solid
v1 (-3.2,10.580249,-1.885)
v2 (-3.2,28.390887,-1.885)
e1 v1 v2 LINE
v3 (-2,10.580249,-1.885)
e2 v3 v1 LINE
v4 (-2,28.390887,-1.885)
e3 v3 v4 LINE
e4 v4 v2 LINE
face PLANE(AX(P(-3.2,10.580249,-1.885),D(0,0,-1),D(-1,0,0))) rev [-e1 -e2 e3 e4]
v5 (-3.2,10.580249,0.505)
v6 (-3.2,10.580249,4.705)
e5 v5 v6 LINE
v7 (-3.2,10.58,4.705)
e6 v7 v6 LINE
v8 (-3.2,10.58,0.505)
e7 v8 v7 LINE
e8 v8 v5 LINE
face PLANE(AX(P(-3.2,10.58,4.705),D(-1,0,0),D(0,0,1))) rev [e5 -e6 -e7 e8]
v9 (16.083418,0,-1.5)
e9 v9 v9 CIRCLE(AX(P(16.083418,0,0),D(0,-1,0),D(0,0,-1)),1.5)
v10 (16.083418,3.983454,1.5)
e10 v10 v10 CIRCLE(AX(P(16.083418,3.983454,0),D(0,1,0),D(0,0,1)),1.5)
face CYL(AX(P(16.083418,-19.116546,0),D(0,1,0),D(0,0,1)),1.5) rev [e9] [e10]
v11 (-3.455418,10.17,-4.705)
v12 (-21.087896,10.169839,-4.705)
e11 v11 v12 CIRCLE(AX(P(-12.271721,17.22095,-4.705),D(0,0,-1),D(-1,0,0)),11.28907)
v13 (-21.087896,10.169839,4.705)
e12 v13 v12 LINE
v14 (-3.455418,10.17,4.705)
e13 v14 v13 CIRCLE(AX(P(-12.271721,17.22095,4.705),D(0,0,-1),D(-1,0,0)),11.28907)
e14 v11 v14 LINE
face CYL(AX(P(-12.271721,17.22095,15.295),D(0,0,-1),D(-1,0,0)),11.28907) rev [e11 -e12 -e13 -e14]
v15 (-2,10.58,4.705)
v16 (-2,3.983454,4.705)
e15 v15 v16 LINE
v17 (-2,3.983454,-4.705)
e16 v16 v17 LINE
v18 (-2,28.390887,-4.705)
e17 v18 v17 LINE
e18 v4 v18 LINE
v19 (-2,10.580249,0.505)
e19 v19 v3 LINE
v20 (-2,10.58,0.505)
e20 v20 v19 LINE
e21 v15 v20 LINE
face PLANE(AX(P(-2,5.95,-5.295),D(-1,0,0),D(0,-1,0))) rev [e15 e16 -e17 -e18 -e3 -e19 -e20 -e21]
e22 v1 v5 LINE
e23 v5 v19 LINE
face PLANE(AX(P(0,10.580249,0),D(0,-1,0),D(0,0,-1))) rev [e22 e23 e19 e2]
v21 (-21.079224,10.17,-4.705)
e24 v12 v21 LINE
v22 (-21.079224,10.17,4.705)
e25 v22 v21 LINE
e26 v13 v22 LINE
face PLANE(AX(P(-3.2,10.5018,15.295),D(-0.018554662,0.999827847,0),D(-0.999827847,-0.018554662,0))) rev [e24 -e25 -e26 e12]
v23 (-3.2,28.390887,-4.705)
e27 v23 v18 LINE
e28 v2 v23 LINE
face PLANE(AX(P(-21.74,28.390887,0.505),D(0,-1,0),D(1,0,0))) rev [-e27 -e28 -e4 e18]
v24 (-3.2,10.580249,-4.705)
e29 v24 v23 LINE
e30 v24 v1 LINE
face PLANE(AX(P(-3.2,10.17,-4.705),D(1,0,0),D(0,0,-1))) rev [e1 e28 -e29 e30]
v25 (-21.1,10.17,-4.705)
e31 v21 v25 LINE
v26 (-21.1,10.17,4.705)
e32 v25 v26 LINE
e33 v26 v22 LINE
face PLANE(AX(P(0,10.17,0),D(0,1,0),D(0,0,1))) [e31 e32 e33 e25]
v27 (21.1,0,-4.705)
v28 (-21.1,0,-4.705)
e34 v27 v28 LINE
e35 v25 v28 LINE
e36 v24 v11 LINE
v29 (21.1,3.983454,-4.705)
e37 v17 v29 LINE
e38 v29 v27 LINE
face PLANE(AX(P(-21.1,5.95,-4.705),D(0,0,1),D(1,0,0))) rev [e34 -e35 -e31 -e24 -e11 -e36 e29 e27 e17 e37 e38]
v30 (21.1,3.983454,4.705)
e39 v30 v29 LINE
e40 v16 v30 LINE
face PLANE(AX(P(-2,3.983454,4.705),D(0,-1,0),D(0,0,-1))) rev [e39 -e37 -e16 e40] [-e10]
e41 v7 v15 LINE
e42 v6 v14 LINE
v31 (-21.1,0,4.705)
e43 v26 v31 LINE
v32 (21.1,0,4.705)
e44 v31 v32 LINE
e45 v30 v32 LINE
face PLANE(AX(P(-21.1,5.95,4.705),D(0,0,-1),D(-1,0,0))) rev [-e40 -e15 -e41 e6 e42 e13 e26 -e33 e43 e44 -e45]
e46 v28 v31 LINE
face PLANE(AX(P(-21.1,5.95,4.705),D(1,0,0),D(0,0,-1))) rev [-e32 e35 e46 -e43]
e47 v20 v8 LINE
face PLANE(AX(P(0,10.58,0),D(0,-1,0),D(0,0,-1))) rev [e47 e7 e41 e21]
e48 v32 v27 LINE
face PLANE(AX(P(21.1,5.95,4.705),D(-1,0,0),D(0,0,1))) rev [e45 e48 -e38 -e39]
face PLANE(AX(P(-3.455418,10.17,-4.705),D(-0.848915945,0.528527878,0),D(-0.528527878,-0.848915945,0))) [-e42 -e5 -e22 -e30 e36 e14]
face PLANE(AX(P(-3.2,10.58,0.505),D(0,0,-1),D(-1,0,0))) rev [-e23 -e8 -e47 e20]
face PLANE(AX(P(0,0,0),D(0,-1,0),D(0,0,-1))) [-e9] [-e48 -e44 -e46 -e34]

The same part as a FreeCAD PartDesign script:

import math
import FreeCAD as App
import Part
import Sketcher

V = App.Vector
Q = App.Units.Quantity

doc = App.newDocument("Part")
body = doc.addObject("PartDesign::Body", "Body")

sketch1 = body.newObject("Sketcher::SketchObject", "Sketch")
sketch1.AttachmentSupport = (doc.getObject("XZ_Plane"), [""])
sketch1.MapMode = "FlatFace"
sketch1.addGeometry(Part.LineSegment(V(-21, -5, 0), V(-21, 5, 0)), False)
sketch1.addGeometry(Part.LineSegment(V(-21, 5, 0), V(21, 5, 0)), False)
sketch1.addGeometry(Part.LineSegment(V(21, 5, 0), V(21, -5, 0)), False)
sketch1.addGeometry(Part.LineSegment(V(21, -5, 0), V(-21, -5, 0)), False)
sketch1.addConstraint(Sketcher.Constraint("Coincident", 0, 2, 1, 1))
sketch1.addConstraint(Sketcher.Constraint("Coincident", 1, 2, 2, 1))
sketch1.addConstraint(Sketcher.Constraint("Coincident", 2, 2, 3, 1))
sketch1.addConstraint(Sketcher.Constraint("Coincident", 3, 2, 0, 1))
sketch1.addConstraint(Sketcher.Constraint("Vertical", 0))
sketch1.addConstraint(Sketcher.Constraint("Horizontal", 1))
sketch1.addConstraint(Sketcher.Constraint("Vertical", 2))
sketch1.addConstraint(Sketcher.Constraint("Horizontal", 3))
sketch1.addConstraint(Sketcher.Constraint("Symmetric", 0, 2, 2, 2, -1, 1))
sketch1.addConstraint(Sketcher.Constraint("DistanceX", 1, 1, 1, 2, Q("42.2 mm")))
sketch1.addConstraint(Sketcher.Constraint("DistanceY", 0, 1, 0, 2, Q("9.41 mm")))
pad1 = body.newObject("PartDesign::Pad", "Pad")
pad1.Profile = sketch1
pad1.Length = 5.95
pad1.Reversed = True

sketch2 = body.newObject("Sketcher::SketchObject", "Sketch001")
sketch2.AttachmentSupport = (doc.getObject("XY_Plane"), [""])
sketch2.MapMode = "FlatFace"
sketch2.AttachmentOffset = App.Placement(V(0, 0, 4.705), App.Rotation())
sketch2.addGeometry(Part.LineSegment(V(-2, 6, 0), V(-2, 5, 0)), False)
sketch2.addGeometry(Part.LineSegment(V(-2, 5, 0), V(21.1, 5, 0)), False)
sketch2.addGeometry(Part.LineSegment(V(21.1, 5, 0), V(21.1, 6, 0)), False)
sketch2.addGeometry(Part.LineSegment(V(21.1, 6, 0), V(-2, 6, 0)), False)
sketch2.addConstraint(Sketcher.Constraint("Coincident", 0, 2, 1, 1))
sketch2.addConstraint(Sketcher.Constraint("Coincident", 1, 2, 2, 1))
sketch2.addConstraint(Sketcher.Constraint("Coincident", 2, 2, 3, 1))
sketch2.addConstraint(Sketcher.Constraint("Coincident", 3, 2, 0, 1))
sketch2.addConstraint(Sketcher.Constraint("Vertical", 0))
sketch2.addConstraint(Sketcher.Constraint("Horizontal", 1))
sketch2.addConstraint(Sketcher.Constraint("Vertical", 2))
sketch2.addConstraint(Sketcher.Constraint("Horizontal", 3))
sketch2.addConstraint(Sketcher.Constraint("DistanceX", 1, 1, 1, 2, Q("23.1 mm")))
sketch2.addConstraint(Sketcher.Constraint("DistanceX", 0, 2, -1, 1, Q("2 mm")))
sketch2.addConstraint(Sketcher.Constraint("DistanceY", -1, 1, 0, 2, Q("5 mm")))
sketch2.addConstraint(Sketcher.Constraint("DistanceY", 0, 2, 0, 1, Q("0.95 mm")))
pocket1 = body.newObject("PartDesign::Pocket", "Pocket")
pocket1.Profile = sketch2
pocket1.Length = 10

sketch3 = body.newObject("Sketcher::SketchObject", "Sketch002")
sketch3.AttachmentSupport = (doc.getObject("XZ_Plane"), [""])
sketch3.MapMode = "FlatFace"
sketch3.AttachmentOffset = App.Placement(V(0, 0, -5.95), App.Rotation())
sketch3.addGeometry(Part.LineSegment(V(-21, -5, 0), V(-21, 5, 0)), False)
sketch3.addGeometry(Part.LineSegment(V(-21, 5, 0), V(-2, 5, 0)), False)
sketch3.addGeometry(Part.LineSegment(V(-2, 5, 0), V(-2, -5, 0)), False)
sketch3.addGeometry(Part.LineSegment(V(-2, -5, 0), V(-21, -5, 0)), False)
sketch3.addConstraint(Sketcher.Constraint("Coincident", 0, 2, 1, 1))
sketch3.addConstraint(Sketcher.Constraint("Coincident", 1, 2, 2, 1))
sketch3.addConstraint(Sketcher.Constraint("Coincident", 2, 2, 3, 1))
sketch3.addConstraint(Sketcher.Constraint("Coincident", 3, 2, 0, 1))
sketch3.addConstraint(Sketcher.Constraint("Vertical", 0))
sketch3.addConstraint(Sketcher.Constraint("Horizontal", 1))
sketch3.addConstraint(Sketcher.Constraint("Vertical", 2))
sketch3.addConstraint(Sketcher.Constraint("Horizontal", 3))
sketch3.addConstraint(Sketcher.Constraint("DistanceX", 1, 1, 1, 2, Q("19.1 mm")))
sketch3.addConstraint(Sketcher.Constraint("DistanceX", 1, 2, -1, 1, Q("2 mm")))
sketch3.addConstraint(Sketcher.Constraint("DistanceY", 0, 1, 0, 2, Q("9.41 mm")))
sketch3.addConstraint(Sketcher.Constraint("DistanceY", -1, 1, 0, 2, Q("4.705 mm")))
pad2 = body.newObject("PartDesign::Pad", "Pad001")
pad2.Profile = sketch3
pad2.Length = 24.37
pad2.Reversed = True

sketch4 = body.newObject("Sketcher::SketchObject", "Sketch003")
sketch4.AttachmentSupport = (doc.getObject("XY_Plane"), [""])
sketch4.MapMode = "FlatFace"
sketch4.AttachmentOffset = App.Placement(V(0, 0, -4.705), App.Rotation())
sketch4.addGeometry(Part.LineSegment(V(-21, 10, 0), V(-3, 11, 0)), False)
sketch4.addGeometry(Part.ArcOfCircle(Part.Circle(V(-12, 17, 0), V(0, 0, 1), 11), math.radians(-141), math.radians(-37)), False)
sketch4.addConstraint(Sketcher.Constraint("Coincident", 0, 1, 1, 1))
sketch4.addConstraint(Sketcher.Constraint("Coincident", 1, 2, 0, 2))
sketch4.addConstraint(Sketcher.Constraint("DistanceX", 1, 2, -1, 1, Q("3.2 mm")))
sketch4.addConstraint(Sketcher.Constraint("Radius", 1, Q("11.28907 mm")))
sketch4.addConstraint(Sketcher.Constraint("DistanceY", -1, 1, 1, 2, Q("10.5018 mm")))
sketch4.addConstraint(Sketcher.Constraint("DistanceX", 1, 3, -1, 1, Q("12.271721 mm")))
sketch4.addConstraint(Sketcher.Constraint("DistanceY", -1, 1, 0, 1, Q("10.169839 mm")))
pocket2 = body.newObject("PartDesign::Pocket", "Pocket001")
pocket2.Profile = sketch4
pocket2.Length = 20
pocket2.Reversed = True

sketch5 = body.newObject("Sketcher::SketchObject", "Sketch004")
sketch5.AttachmentSupport = (doc.getObject("XZ_Plane"), [""])
sketch5.MapMode = "FlatFace"
sketch5.AttachmentOffset = App.Placement(V(0, 0, -30.32), App.Rotation())
sketch5.addGeometry(Part.LineSegment(V(-21, -5, 0), V(-21, 5, 0)), False)
sketch5.addGeometry(Part.LineSegment(V(-21, 5, 0), V(-3, 5, 0)), False)
sketch5.addGeometry(Part.LineSegment(V(-3, 5, 0), V(-3, -5, 0)), False)
sketch5.addGeometry(Part.LineSegment(V(-3, -5, 0), V(-21, -5, 0)), False)
sketch5.addConstraint(Sketcher.Constraint("Coincident", 0, 2, 1, 1))
sketch5.addConstraint(Sketcher.Constraint("Coincident", 1, 2, 2, 1))
sketch5.addConstraint(Sketcher.Constraint("Coincident", 2, 2, 3, 1))
sketch5.addConstraint(Sketcher.Constraint("Coincident", 3, 2, 0, 1))
sketch5.addConstraint(Sketcher.Constraint("Vertical", 0))
sketch5.addConstraint(Sketcher.Constraint("Horizontal", 1))
sketch5.addConstraint(Sketcher.Constraint("Vertical", 2))
sketch5.addConstraint(Sketcher.Constraint("Horizontal", 3))
sketch5.addConstraint(Sketcher.Constraint("DistanceX", 1, 1, 1, 2, Q("17.9 mm")))
sketch5.addConstraint(Sketcher.Constraint("DistanceY", 0, 1, 0, 2, Q("9.41 mm")))
sketch5.addConstraint(Sketcher.Constraint("DistanceX", 0, 2, -1, 1, Q("21.1 mm")))
sketch5.addConstraint(Sketcher.Constraint("DistanceY", -1, 1, 0, 2, Q("4.705 mm")))
pocket3 = body.newObject("PartDesign::Pocket", "Pocket002")
pocket3.Profile = sketch5
pocket3.Length = 20.15
pocket3.Reversed = True

sketch6 = body.newObject("Sketcher::SketchObject", "Sketch005")
sketch6.AttachmentSupport = (doc.getObject("XY_Plane"), [""])
sketch6.MapMode = "FlatFace"
sketch6.AttachmentOffset = App.Placement(V(0, 0, 4.705), App.Rotation())
sketch6.addGeometry(Part.LineSegment(V(-3.2, 10.58, 0), V(-3.46, 10.17, 0)), False)
sketch6.addGeometry(Part.LineSegment(V(-3.46, 10.17, 0), V(-3.2, 10.17, 0)), False)
sketch6.addGeometry(Part.LineSegment(V(-3.2, 10.17, 0), V(-3.2, 10.58, 0)), False)
sketch6.addConstraint(Sketcher.Constraint("Coincident", 0, 2, 1, 1))
sketch6.addConstraint(Sketcher.Constraint("Coincident", 1, 2, 2, 1))
sketch6.addConstraint(Sketcher.Constraint("Coincident", 2, 2, 0, 1))
sketch6.addConstraint(Sketcher.Constraint("Horizontal", 1))
sketch6.addConstraint(Sketcher.Constraint("Vertical", 2))
sketch6.addConstraint(Sketcher.Constraint("DistanceX", 1, 2, -1, 1, Q("3.2 mm")))
sketch6.addConstraint(Sketcher.Constraint("DistanceY", -1, 1, 0, 2, Q("10.17 mm")))
sketch6.addConstraint(Sketcher.Constraint("DistanceY", 2, 1, 2, 2, Q("0.410249 mm")))
sketch6.addConstraint(Sketcher.Constraint("DistanceX", 1, 1, 1, 2, Q("0.255418 mm")))
pad3 = body.newObject("PartDesign::Pad", "Pad002")
pad3.Profile = sketch6
pad3.Length = 9.41
pad3.Reversed = True

sketch7 = body.newObject("Sketcher::SketchObject", "Sketch006")
sketch7.AttachmentSupport = (doc.getObject("XZ_Plane"), [""])
sketch7.MapMode = "FlatFace"
sketch7.AttachmentOffset = App.Placement(V(0, 0, -30.32), App.Rotation())
sketch7.addGeometry(Part.LineSegment(V(-3.2, 0.5, 0), V(-3.2, 4.7, 0)), False)
sketch7.addGeometry(Part.LineSegment(V(-3.2, 4.7, 0), V(-2, 4.7, 0)), False)
sketch7.addGeometry(Part.LineSegment(V(-2, 4.7, 0), V(-2, 0.5, 0)), False)
sketch7.addGeometry(Part.LineSegment(V(-2, 0.5, 0), V(-3.2, 0.5, 0)), False)
sketch7.addConstraint(Sketcher.Constraint("Coincident", 0, 2, 1, 1))
sketch7.addConstraint(Sketcher.Constraint("Coincident", 1, 2, 2, 1))
sketch7.addConstraint(Sketcher.Constraint("Coincident", 2, 2, 3, 1))
sketch7.addConstraint(Sketcher.Constraint("Coincident", 3, 2, 0, 1))
sketch7.addConstraint(Sketcher.Constraint("Vertical", 0))
sketch7.addConstraint(Sketcher.Constraint("Horizontal", 1))
sketch7.addConstraint(Sketcher.Constraint("Vertical", 2))
sketch7.addConstraint(Sketcher.Constraint("Horizontal", 3))
sketch7.addConstraint(Sketcher.Constraint("DistanceX", 1, 1, 1, 2, Q("1.2 mm")))
sketch7.addConstraint(Sketcher.Constraint("DistanceY", 0, 1, 0, 2, Q("4.2 mm")))
sketch7.addConstraint(Sketcher.Constraint("DistanceX", 1, 2, -1, 1, Q("2 mm")))
sketch7.addConstraint(Sketcher.Constraint("DistanceY", -1, 1, 0, 2, Q("4.705 mm")))
pocket4 = body.newObject("PartDesign::Pocket", "Pocket003")
pocket4.Profile = sketch7
pocket4.Length = 19.74
pocket4.Reversed = True

sketch8 = body.newObject("Sketcher::SketchObject", "Sketch007")
sketch8.AttachmentSupport = (doc.getObject("YZ_Plane"), [""])
sketch8.MapMode = "FlatFace"
sketch8.AttachmentOffset = App.Placement(V(0, 0, -2), App.Rotation())
sketch8.addGeometry(Part.LineSegment(V(30.3, 0.5, 0), V(28.4, 0.5, 0)), False)
sketch8.addGeometry(Part.LineSegment(V(28.4, 0.5, 0), V(28.4, -4.7, 0)), False)
sketch8.addGeometry(Part.LineSegment(V(28.4, -4.7, 0), V(30.3, -4.7, 0)), False)
sketch8.addGeometry(Part.LineSegment(V(30.3, -4.7, 0), V(30.3, 0.5, 0)), False)
sketch8.addConstraint(Sketcher.Constraint("Coincident", 0, 2, 1, 1))
sketch8.addConstraint(Sketcher.Constraint("Coincident", 1, 2, 2, 1))
sketch8.addConstraint(Sketcher.Constraint("Coincident", 2, 2, 3, 1))
sketch8.addConstraint(Sketcher.Constraint("Coincident", 3, 2, 0, 1))
sketch8.addConstraint(Sketcher.Constraint("Horizontal", 0))
sketch8.addConstraint(Sketcher.Constraint("Vertical", 1))
sketch8.addConstraint(Sketcher.Constraint("Horizontal", 2))
sketch8.addConstraint(Sketcher.Constraint("Vertical", 3))
sketch8.addConstraint(Sketcher.Constraint("DistanceY", 1, 2, 1, 1, Q("5.21 mm")))
sketch8.addConstraint(Sketcher.Constraint("DistanceX", -1, 1, 2, 2, Q("30.32 mm")))
sketch8.addConstraint(Sketcher.Constraint("DistanceY", -1, 1, 0, 2, Q("0.505 mm")))
sketch8.addConstraint(Sketcher.Constraint("DistanceX", 0, 2, 0, 1, Q("1.929113 mm")))
pocket5 = body.newObject("PartDesign::Pocket", "Pocket004")
pocket5.Profile = sketch8
pocket5.Length = 19.74

sketch9 = body.newObject("Sketcher::SketchObject", "Sketch008")
sketch9.AttachmentSupport = (doc.getObject("XZ_Plane"), [""])
sketch9.MapMode = "FlatFace"
sketch9.AttachmentOffset = App.Placement(V(0, 0, -28.390887), App.Rotation())
sketch9.addGeometry(Part.LineSegment(V(-3.2, -1.9, 0), V(-3.2, 0.5, 0)), False)
sketch9.addGeometry(Part.LineSegment(V(-3.2, 0.5, 0), V(-2, 0.5, 0)), False)
sketch9.addGeometry(Part.LineSegment(V(-2, 0.5, 0), V(-2, -1.9, 0)), False)
sketch9.addGeometry(Part.LineSegment(V(-2, -1.9, 0), V(-3.2, -1.9, 0)), False)
sketch9.addConstraint(Sketcher.Constraint("Coincident", 0, 2, 1, 1))
sketch9.addConstraint(Sketcher.Constraint("Coincident", 1, 2, 2, 1))
sketch9.addConstraint(Sketcher.Constraint("Coincident", 2, 2, 3, 1))
sketch9.addConstraint(Sketcher.Constraint("Coincident", 3, 2, 0, 1))
sketch9.addConstraint(Sketcher.Constraint("Vertical", 0))
sketch9.addConstraint(Sketcher.Constraint("Horizontal", 1))
sketch9.addConstraint(Sketcher.Constraint("Vertical", 2))
sketch9.addConstraint(Sketcher.Constraint("Horizontal", 3))
sketch9.addConstraint(Sketcher.Constraint("DistanceX", 1, 1, 1, 2, Q("1.2 mm")))
sketch9.addConstraint(Sketcher.Constraint("DistanceX", 1, 2, -1, 1, Q("2 mm")))
sketch9.addConstraint(Sketcher.Constraint("DistanceY", 0, 1, 0, 2, Q("2.39 mm")))
sketch9.addConstraint(Sketcher.Constraint("DistanceY", -1, 1, 0, 2, Q("0.505 mm")))
pocket6 = body.newObject("PartDesign::Pocket", "Pocket005")
pocket6.Profile = sketch9
pocket6.Length = 17.810638
pocket6.Reversed = True

sketch10 = body.newObject("Sketcher::SketchObject", "Sketch009")
sketch10.AttachmentSupport = (doc.getObject("YZ_Plane"), [""])
sketch10.MapMode = "FlatFace"
sketch10.AttachmentOffset = App.Placement(V(0, 0, 21.1), App.Rotation())
sketch10.addGeometry(Part.LineSegment(V(5, 4.7, 0), V(4, 4.7, 0)), False)
sketch10.addGeometry(Part.LineSegment(V(4, 4.7, 0), V(4, -4.7, 0)), False)
sketch10.addGeometry(Part.LineSegment(V(4, -4.7, 0), V(5, -4.7, 0)), False)
sketch10.addGeometry(Part.LineSegment(V(5, -4.7, 0), V(5, 4.7, 0)), False)
sketch10.addConstraint(Sketcher.Constraint("Coincident", 0, 2, 1, 1))
sketch10.addConstraint(Sketcher.Constraint("Coincident", 1, 2, 2, 1))
sketch10.addConstraint(Sketcher.Constraint("Coincident", 2, 2, 3, 1))
sketch10.addConstraint(Sketcher.Constraint("Coincident", 3, 2, 0, 1))
sketch10.addConstraint(Sketcher.Constraint("Horizontal", 0))
sketch10.addConstraint(Sketcher.Constraint("Vertical", 1))
sketch10.addConstraint(Sketcher.Constraint("Horizontal", 2))
sketch10.addConstraint(Sketcher.Constraint("Vertical", 3))
sketch10.addConstraint(Sketcher.Constraint("DistanceX", -1, 1, 2, 2, Q("5 mm")))
sketch10.addConstraint(Sketcher.Constraint("DistanceY", 1, 2, 1, 1, Q("9.41 mm")))
sketch10.addConstraint(Sketcher.Constraint("DistanceY", -1, 1, 0, 2, Q("4.705 mm")))
sketch10.addConstraint(Sketcher.Constraint("DistanceX", 0, 2, 0, 1, Q("1.016546 mm")))
pocket7 = body.newObject("PartDesign::Pocket", "Pocket006")
pocket7.Profile = sketch10
pocket7.Length = 23.1

sketch11 = body.newObject("Sketcher::SketchObject", "Sketch010")
sketch11.AttachmentSupport = (doc.getObject("XZ_Plane"), [""])
sketch11.MapMode = "FlatFace"
sketch11.AttachmentOffset = App.Placement(V(0, 0, -3.983454), App.Rotation())
sketch11.addGeometry(Part.Circle(V(16.1, 0, 0), V(0, 0, 1), 1.5), False)
sketch11.addConstraint(Sketcher.Constraint("PointOnObject", 0, 3, -1))
sketch11.addConstraint(Sketcher.Constraint("Diameter", 0, Q("3 mm")))
sketch11.addConstraint(Sketcher.Constraint("DistanceX", -1, 1, 0, 3, Q("16.083418 mm")))
pocket8 = body.newObject("PartDesign::Pocket", "Pocket007")
pocket8.Profile = sketch11
pocket8.Length = 23.1
pocket8.Reversed = True

doc.recompute()
